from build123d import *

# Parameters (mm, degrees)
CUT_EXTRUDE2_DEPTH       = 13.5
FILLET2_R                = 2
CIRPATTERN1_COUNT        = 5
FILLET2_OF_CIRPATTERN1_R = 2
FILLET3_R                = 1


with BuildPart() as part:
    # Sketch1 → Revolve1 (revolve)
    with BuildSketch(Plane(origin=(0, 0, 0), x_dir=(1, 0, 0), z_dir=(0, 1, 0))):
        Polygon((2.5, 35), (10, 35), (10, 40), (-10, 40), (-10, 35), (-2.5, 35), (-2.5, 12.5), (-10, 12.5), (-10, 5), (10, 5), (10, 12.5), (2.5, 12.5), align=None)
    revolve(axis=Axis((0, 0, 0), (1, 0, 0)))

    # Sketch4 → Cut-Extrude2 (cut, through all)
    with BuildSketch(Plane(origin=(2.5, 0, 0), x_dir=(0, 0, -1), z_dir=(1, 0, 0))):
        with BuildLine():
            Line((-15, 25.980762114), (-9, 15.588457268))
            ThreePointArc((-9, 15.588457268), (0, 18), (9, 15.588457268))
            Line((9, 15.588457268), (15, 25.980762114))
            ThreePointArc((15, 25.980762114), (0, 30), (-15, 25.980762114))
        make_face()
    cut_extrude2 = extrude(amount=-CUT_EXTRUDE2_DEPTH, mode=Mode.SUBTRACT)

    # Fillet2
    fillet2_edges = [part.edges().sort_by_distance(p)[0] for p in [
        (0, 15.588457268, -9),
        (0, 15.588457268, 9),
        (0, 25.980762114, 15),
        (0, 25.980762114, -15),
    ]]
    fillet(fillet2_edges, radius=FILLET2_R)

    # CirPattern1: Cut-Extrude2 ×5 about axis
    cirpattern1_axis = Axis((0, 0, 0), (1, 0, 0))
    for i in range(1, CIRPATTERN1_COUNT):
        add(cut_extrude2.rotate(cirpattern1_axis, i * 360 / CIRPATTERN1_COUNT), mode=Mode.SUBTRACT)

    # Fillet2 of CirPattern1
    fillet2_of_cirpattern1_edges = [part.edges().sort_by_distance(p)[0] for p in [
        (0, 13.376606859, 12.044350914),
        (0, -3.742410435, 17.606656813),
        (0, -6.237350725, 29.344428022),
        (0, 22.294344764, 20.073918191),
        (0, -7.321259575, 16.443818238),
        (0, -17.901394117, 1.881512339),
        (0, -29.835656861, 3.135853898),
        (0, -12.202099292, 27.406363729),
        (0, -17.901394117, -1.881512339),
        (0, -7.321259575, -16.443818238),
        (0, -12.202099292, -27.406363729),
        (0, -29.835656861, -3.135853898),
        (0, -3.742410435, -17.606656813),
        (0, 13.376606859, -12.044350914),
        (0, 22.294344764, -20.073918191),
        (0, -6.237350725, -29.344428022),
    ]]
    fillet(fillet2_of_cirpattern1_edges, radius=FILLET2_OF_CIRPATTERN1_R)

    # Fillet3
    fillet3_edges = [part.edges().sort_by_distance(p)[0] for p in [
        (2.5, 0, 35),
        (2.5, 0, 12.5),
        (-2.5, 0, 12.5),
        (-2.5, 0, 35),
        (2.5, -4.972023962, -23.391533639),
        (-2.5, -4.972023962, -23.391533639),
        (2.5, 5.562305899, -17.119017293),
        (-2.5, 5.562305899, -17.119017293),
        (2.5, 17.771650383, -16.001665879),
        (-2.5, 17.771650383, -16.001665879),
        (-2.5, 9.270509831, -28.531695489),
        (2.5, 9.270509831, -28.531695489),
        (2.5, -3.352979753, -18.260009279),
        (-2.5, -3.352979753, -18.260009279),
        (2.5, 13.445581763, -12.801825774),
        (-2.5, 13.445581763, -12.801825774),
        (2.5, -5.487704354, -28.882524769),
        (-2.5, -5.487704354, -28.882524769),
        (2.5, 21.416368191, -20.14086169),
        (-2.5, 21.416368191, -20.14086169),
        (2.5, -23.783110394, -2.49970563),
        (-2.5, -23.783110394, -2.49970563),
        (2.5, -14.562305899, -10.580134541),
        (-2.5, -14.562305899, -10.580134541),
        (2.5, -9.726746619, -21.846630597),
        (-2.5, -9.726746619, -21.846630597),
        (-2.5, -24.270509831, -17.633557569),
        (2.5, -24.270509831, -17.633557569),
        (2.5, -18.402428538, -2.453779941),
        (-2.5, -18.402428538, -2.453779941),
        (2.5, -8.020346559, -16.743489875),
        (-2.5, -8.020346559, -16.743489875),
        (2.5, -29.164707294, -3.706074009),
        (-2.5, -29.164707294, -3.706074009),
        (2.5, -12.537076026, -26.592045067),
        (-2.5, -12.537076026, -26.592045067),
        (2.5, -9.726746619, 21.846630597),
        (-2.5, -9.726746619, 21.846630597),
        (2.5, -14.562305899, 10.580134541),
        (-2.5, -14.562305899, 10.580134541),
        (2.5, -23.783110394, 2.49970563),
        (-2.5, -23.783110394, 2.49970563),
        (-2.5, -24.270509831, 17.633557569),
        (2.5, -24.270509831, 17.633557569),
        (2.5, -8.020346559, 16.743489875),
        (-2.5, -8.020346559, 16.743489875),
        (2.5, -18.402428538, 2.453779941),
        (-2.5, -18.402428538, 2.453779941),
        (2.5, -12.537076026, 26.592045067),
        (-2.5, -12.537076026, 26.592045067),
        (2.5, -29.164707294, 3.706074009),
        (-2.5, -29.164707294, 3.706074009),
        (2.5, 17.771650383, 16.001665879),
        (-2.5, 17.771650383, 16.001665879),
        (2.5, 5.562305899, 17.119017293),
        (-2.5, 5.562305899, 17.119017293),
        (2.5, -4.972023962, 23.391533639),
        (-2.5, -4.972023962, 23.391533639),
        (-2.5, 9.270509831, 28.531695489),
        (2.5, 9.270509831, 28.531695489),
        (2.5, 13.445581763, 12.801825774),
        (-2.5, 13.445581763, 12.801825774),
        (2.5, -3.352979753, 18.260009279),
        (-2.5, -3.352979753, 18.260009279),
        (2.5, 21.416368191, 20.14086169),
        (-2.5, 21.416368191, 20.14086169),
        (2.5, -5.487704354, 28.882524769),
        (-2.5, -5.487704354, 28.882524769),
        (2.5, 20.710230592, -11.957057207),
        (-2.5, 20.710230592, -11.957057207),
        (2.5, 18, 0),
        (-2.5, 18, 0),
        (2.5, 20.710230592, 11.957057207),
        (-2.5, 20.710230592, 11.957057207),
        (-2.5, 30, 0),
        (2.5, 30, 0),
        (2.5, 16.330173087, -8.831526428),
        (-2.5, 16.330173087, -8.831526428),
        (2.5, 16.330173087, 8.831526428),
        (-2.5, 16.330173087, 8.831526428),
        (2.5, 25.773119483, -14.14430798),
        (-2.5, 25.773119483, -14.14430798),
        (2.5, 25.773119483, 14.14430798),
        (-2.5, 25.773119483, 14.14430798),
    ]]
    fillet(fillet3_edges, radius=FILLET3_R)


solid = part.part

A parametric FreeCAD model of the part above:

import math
import FreeCAD as App
import Part
import Sketcher
Q = App.Units.Quantity


def edges_at(feature, points):
    """Names of the edges that pass closest to the given points."""
    edges = feature.Shape.Edges
    near = lambda p: min(range(len(edges)), key=lambda i: edges[i].distToShape(Part.Vertex(*p))[0])
    return sorted({f"Edge{near(p) + 1}" for p in points})

doc = App.newDocument("Part")
body = doc.addObject("PartDesign::Body", "Body")

sketch1 = body.newObject("Sketcher::SketchObject", "Sketch")
sketch1.AttachmentSupport = (doc.getObject("XZ_Plane"), [""])
sketch1.MapMode = "FlatFace"
sketch1.addGeometry([
    Part.LineSegment(App.Vector(2, -35, 0), App.Vector(10, -35, 0)),
    Part.LineSegment(App.Vector(10, -35, 0), App.Vector(10, -40, 0)),
    Part.LineSegment(App.Vector(10, -40, 0), App.Vector(-10, -40, 0)),
    Part.LineSegment(App.Vector(-10, -40, 0), App.Vector(-10, -35, 0)),
    Part.LineSegment(App.Vector(-10, -35, 0), App.Vector(-2, -35, 0)),
    Part.LineSegment(App.Vector(-2, -35, 0), App.Vector(-2, -12, 0)),
    Part.LineSegment(App.Vector(-2, -12, 0), App.Vector(-10, -12, 0)),
    Part.LineSegment(App.Vector(-10, -12, 0), App.Vector(-10, -5, 0)),
    Part.LineSegment(App.Vector(-10, -5, 0), App.Vector(10, -5, 0)),
    Part.LineSegment(App.Vector(10, -5, 0), App.Vector(10, -12, 0)),
    Part.LineSegment(App.Vector(10, -12, 0), App.Vector(2, -12, 0)),
    Part.LineSegment(App.Vector(2, -12, 0), App.Vector(2, -35, 0)),
], False)
sketch1.addConstraint([
    Sketcher.Constraint("Coincident", 0, 2, 1, 1),
    Sketcher.Constraint("Coincident", 1, 2, 2, 1),
    Sketcher.Constraint("Coincident", 2, 2, 3, 1),
    Sketcher.Constraint("Coincident", 3, 2, 4, 1),
    Sketcher.Constraint("Coincident", 4, 2, 5, 1),
    Sketcher.Constraint("Coincident", 5, 2, 6, 1),
    Sketcher.Constraint("Coincident", 6, 2, 7, 1),
    Sketcher.Constraint("Coincident", 7, 2, 8, 1),
    Sketcher.Constraint("Coincident", 8, 2, 9, 1),
    Sketcher.Constraint("Coincident", 9, 2, 10, 1),
    Sketcher.Constraint("Coincident", 10, 2, 11, 1),
    Sketcher.Constraint("Coincident", 11, 2, 0, 1),
    Sketcher.Constraint("Horizontal", 0),
    Sketcher.Constraint("Vertical", 1),
    Sketcher.Constraint("Horizontal", 2),
    Sketcher.Constraint("Vertical", 3),
    Sketcher.Constraint("Horizontal", 4),
    Sketcher.Constraint("Vertical", 5),
    Sketcher.Constraint("Horizontal", 6),
    Sketcher.Constraint("Vertical", 7),
    Sketcher.Constraint("Horizontal", 8),
    Sketcher.Constraint("Vertical", 9),
    Sketcher.Constraint("Horizontal", 10),
    Sketcher.Constraint("Vertical", 11),
    Sketcher.Constraint("Symmetric", 0, 2, 3, 2, -2),
    Sketcher.Constraint("Symmetric", 6, 2, 9, 2, -2),
    Sketcher.Constraint("Vertical", 3, 2, 6, 2),
    Sketcher.Constraint("Equal", 0, 4),
    Sketcher.Constraint("Equal", 10, 7),
    Sketcher.Constraint("DistanceX", 2, 2, 2, 1, Q("20 mm")),
    Sketcher.Constraint("DistanceY", 1, 2, 1, 1, Q("5 mm")),
    Sketcher.Constraint("DistanceX", 0, 1, 0, 2, Q("7.5 mm")),
    Sketcher.Constraint("DistanceY", 5, 1, 5, 2, Q("22.5 mm")),
    Sketcher.Constraint("DistanceY", 0, 2, -1, 1, Q("35 mm")),
])
revolution = body.newObject("PartDesign::Revolution", "Revolution")
revolution.Profile = sketch1
revolution.ReferenceAxis = (sketch1, ["H_Axis"])
revolution.Angle = 360

sketch2 = body.newObject("Sketcher::SketchObject", "Sketch001")
sketch2.AttachmentSupport = (doc.getObject("YZ_Plane"), [""])
sketch2.MapMode = "FlatFace"
sketch2.AttachmentOffset = App.Placement(App.Vector(0, 0, 2.5), App.Rotation())
sketch2.addGeometry([
    Part.LineSegment(App.Vector(26, 15, 0), App.Vector(16, 9, 0)),
    Part.ArcOfCircle(Part.Circle(App.Vector(0, 0, 0), App.Vector(0, 0, 1), 18), math.radians(-30), math.radians(30)),
    Part.LineSegment(App.Vector(16, -9, 0), App.Vector(26, -15, 0)),
    Part.ArcOfCircle(Part.Circle(App.Vector(0, 0, 0), App.Vector(0, 0, 1), 30), math.radians(-30), math.radians(30)),
], False)
sketch2.addConstraint([
    Sketcher.Constraint("Coincident", 0, 2, 1, 2),
    Sketcher.Constraint("Coincident", 1, 1, 2, 1),
    Sketcher.Constraint("Coincident", 2, 2, 3, 1),
    Sketcher.Constraint("Coincident", 3, 2, 0, 1),
    Sketcher.Constraint("Coincident", 1, 3, -1, 1),
    Sketcher.Constraint("Coincident", 3, 3, -1, 1),
    Sketcher.Constraint("Vertical", 0, 2, 1, 1),
    Sketcher.Constraint("Vertical", 2, 2, 3, 2),
    Sketcher.Constraint("Radius", 1, Q("18 mm")),
    Sketcher.Constraint("Radius", 3, Q("30 mm")),
    Sketcher.Constraint("Angle", 0, Q("-150 deg")),
    Sketcher.Constraint("DistanceY", -1, 1, 0, 2, Q("9 mm")),
])
pocket1 = body.newObject("PartDesign::Pocket", "Pocket")
pocket1.Profile = sketch2
pocket1.Type = "ThroughAll"
doc.recompute()

fillet = body.newObject("PartDesign::Fillet", "Fillet")
fillet.Base = (pocket1, edges_at(pocket1, [
    (0, 15.588, -9),
    (0, 15.588, 9),
    (0, 25.981, 15),
    (0, 25.981, -15),
]))
fillet.Radius = 2
doc.recompute()

polarpattern = body.newObject("PartDesign::PolarPattern", "PolarPattern")
polarpattern.Originals = [pocket1]
polarpattern.Axis = (doc.getObject("X_Axis"), [""])
polarpattern.Angle = 360
polarpattern.Occurrences = 5
body.Tip = polarpattern
doc.recompute()

fillet2 = body.newObject("PartDesign::Fillet", "Fillet001")
fillet2.Base = (polarpattern, edges_at(polarpattern, [
    (0, 13.377, 12.044),
    (0, -3.742, 17.607),
    (0, -6.237, 29.344),
    (0, 22.294, 20.074),
    (0, -7.321, 16.444),
    (0, -17.901, 1.882),
    (0, -29.836, 3.136),
    (0, -12.202, 27.406),
    (0, -17.901, -1.882),
    (0, -7.321, -16.444),
    (0, -12.202, -27.406),
    (0, -29.836, -3.136),
    (0, -3.742, -17.607),
    (0, 13.377, -12.044),
    (0, 22.294, -20.074),
    (0, -6.237, -29.344),
]))
fillet2.Radius = 2
doc.recompute()

fillet3 = body.newObject("PartDesign::Fillet", "Fillet002")
fillet3.Base = (fillet2, edges_at(fillet2, [
    (2.5, 0, 35),
    (2.5, 0, 12.5),
    (-2.5, 0, 12.5),
    (-2.5, 0, 35),
    (2.5, -4.972, -23.392),
    (-2.5, -4.972, -23.392),
    (2.5, 5.562, -17.119),
    (-2.5, 5.562, -17.119),
    (2.5, 17.772, -16.002),
    (-2.5, 17.772, -16.002),
    (-2.5, 9.271, -28.532),
    (2.5, 9.271, -28.532),
    (2.5, -3.353, -18.26),
    (-2.5, -3.353, -18.26),
    (2.5, 13.446, -12.802),
    (-2.5, 13.446, -12.802),
    (2.5, -5.488, -28.883),
    (-2.5, -5.488, -28.883),
    (2.5, 21.416, -20.141),
    (-2.5, 21.416, -20.141),
    (2.5, -23.783, -2.5),
    (-2.5, -23.783, -2.5),
    (2.5, -14.562, -10.58),
    (-2.5, -14.562, -10.58),
    (2.5, -9.727, -21.847),
    (-2.5, -9.727, -21.847),
    (-2.5, -24.271, -17.634),
    (2.5, -24.271, -17.634),
    (2.5, -18.402, -2.454),
    (-2.5, -18.402, -2.454),
    (2.5, -8.02, -16.743),
    (-2.5, -8.02, -16.743),
    (2.5, -29.165, -3.706),
    (-2.5, -29.165, -3.706),
    (2.5, -12.537, -26.592),
    (-2.5, -12.537, -26.592),
    (2.5, -9.727, 21.847),
    (-2.5, -9.727, 21.847),
    (2.5, -14.562, 10.58),
    (-2.5, -14.562, 10.58),
    (2.5, -23.783, 2.5),
    (-2.5, -23.783, 2.5),
    (-2.5, -24.271, 17.634),
    (2.5, -24.271, 17.634),
    (2.5, -8.02, 16.743),
    (-2.5, -8.02, 16.743),
    (2.5, -18.402, 2.454),
    (-2.5, -18.402, 2.454),
    (2.5, -12.537, 26.592),
    (-2.5, -12.537, 26.592),
    (2.5, -29.165, 3.706),
    (-2.5, -29.165, 3.706),
    (2.5, 17.772, 16.002),
    (-2.5, 17.772, 16.002),
    (2.5, 5.562, 17.119),
    (-2.5, 5.562, 17.119),
    (2.5, -4.972, 23.392),
    (-2.5, -4.972, 23.392),
    (-2.5, 9.271, 28.532),
    (2.5, 9.271, 28.532),
    (2.5, 13.446, 12.802),
    (-2.5, 13.446, 12.802),
    (2.5, -3.353, 18.26),
    (-2.5, -3.353, 18.26),
    (2.5, 21.416, 20.141),
    (-2.5, 21.416, 20.141),
    (2.5, -5.488, 28.883),
    (-2.5, -5.488, 28.883),
    (2.5, 20.71, -11.957),
    (-2.5, 20.71, -11.957),
    (2.5, 18, 0),
    (-2.5, 18, 0),
    (2.5, 20.71, 11.957),
    (-2.5, 20.71, 11.957),
    (-2.5, 30, 0),
    (2.5, 30, 0),
    (2.5, 16.33, -8.832),
    (-2.5, 16.33, -8.832),
    (2.5, 16.33, 8.832),
    (-2.5, 16.33, 8.832),
    (2.5, 25.773, -14.144),
    (-2.5, 25.773, -14.144),
    (2.5, 25.773, 14.144),
    (-2.5, 25.773, 14.144),
]))
fillet3.Radius = 1

doc.recompute()
